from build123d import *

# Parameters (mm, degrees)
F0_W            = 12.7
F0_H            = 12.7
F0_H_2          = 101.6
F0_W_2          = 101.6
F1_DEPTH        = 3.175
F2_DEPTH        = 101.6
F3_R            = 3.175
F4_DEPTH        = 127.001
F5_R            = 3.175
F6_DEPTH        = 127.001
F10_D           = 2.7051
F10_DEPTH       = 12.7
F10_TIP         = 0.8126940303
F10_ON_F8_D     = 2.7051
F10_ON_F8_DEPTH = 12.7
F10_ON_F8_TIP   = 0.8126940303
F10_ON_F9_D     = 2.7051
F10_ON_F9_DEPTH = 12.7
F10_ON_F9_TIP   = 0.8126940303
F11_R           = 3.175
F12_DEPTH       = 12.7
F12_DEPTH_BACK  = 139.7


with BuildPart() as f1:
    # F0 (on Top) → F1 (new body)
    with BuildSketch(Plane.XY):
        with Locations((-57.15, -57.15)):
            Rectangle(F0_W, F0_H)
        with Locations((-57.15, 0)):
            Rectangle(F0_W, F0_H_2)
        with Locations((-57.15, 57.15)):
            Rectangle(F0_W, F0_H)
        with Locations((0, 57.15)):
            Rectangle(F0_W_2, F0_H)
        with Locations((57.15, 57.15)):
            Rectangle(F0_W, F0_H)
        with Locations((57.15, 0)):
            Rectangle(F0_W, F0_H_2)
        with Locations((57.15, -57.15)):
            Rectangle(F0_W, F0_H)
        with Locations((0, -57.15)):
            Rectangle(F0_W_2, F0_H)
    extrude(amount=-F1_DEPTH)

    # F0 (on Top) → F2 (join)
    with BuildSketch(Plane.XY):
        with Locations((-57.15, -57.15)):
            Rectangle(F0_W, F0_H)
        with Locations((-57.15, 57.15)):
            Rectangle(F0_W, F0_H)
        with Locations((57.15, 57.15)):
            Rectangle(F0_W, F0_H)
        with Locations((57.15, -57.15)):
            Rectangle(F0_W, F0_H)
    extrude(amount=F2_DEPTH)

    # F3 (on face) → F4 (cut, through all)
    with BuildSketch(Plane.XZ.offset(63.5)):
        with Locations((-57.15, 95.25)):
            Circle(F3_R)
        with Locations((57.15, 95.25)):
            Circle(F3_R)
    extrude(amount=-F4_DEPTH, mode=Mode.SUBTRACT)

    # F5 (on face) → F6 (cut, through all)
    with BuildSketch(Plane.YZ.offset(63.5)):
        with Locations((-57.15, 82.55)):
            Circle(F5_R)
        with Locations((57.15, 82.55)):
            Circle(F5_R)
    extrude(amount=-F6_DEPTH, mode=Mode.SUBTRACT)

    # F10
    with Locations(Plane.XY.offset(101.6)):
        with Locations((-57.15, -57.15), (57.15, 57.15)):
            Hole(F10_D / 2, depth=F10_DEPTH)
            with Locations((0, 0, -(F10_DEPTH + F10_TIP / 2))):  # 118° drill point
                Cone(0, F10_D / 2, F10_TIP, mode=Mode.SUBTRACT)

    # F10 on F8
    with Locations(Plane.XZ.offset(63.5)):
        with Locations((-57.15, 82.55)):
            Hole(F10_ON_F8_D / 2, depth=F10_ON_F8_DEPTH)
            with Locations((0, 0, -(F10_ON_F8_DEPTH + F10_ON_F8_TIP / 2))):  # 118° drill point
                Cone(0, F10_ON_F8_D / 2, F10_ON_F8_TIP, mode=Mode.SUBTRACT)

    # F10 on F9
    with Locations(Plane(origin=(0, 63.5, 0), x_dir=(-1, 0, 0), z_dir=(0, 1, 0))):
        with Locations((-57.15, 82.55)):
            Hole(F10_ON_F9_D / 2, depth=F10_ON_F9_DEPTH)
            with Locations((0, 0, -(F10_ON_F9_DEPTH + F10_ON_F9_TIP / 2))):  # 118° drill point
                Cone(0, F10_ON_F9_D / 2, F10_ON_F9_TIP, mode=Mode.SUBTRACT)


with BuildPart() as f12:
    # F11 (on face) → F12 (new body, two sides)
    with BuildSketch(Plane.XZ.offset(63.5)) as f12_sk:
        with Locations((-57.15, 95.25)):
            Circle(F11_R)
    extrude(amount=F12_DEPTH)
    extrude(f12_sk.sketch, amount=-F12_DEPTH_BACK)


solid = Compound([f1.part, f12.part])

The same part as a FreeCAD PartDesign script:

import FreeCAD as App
import Part
import Sketcher

V = App.Vector
Q = App.Units.Quantity


def add_polygon(sketch, points):
    """Adds a closed chain of lines whose ends are joined by coincident constraints."""
    first, n = sketch.GeometryCount, len(points)
    for a, b in zip(points, points[1:] + points[:1]):
        sketch.addGeometry(Part.LineSegment(App.Vector(*a, 0), App.Vector(*b, 0)), False)
    for i in range(n):
        sketch.addConstraint(Sketcher.Constraint("Coincident", first + i, 2, first + (i + 1) % n, 1))

doc = App.newDocument("Part")
body = doc.addObject("PartDesign::Body", "Body")

# Sketch on XY plane
sketch1 = body.newObject("Sketcher::SketchObject", "Sketch")
sketch1.AttachmentSupport = (doc.getObject("XY_Plane"), [""])
sketch1.MapMode = "FlatFace"
add_polygon(sketch1, [(-64, -64), (64, -64), (64, 64), (-64, 64)])  # lines 0-3
add_polygon(sketch1, [(-51, -51), (-51, 51), (51, 51), (51, -51)])  # lines 4-7
sketch1.addConstraint(Sketcher.Constraint("Horizontal", 0))
sketch1.addConstraint(Sketcher.Constraint("Vertical", 1))
sketch1.addConstraint(Sketcher.Constraint("Horizontal", 2))
sketch1.addConstraint(Sketcher.Constraint("Vertical", 3))
sketch1.addConstraint(Sketcher.Constraint("Vertical", 4))
sketch1.addConstraint(Sketcher.Constraint("Horizontal", 5))
sketch1.addConstraint(Sketcher.Constraint("Vertical", 6))
sketch1.addConstraint(Sketcher.Constraint("Horizontal", 7))
sketch1.addConstraint(Sketcher.Constraint("Symmetric", 0, 2, 2, 2, -1, 1))
sketch1.addConstraint(Sketcher.Constraint("Symmetric", 4, 2, 6, 2, -1, 1))
sketch1.addConstraint(Sketcher.Constraint("Equal", 2, 1))
sketch1.addConstraint(Sketcher.Constraint("Equal", 7, 4))
sketch1.addConstraint(Sketcher.Constraint("DistanceX", 0, 1, 0, 2, Q("5 in")))
sketch1.addConstraint(Sketcher.Constraint("DistanceX", 5, 1, 5, 2, Q("4 in")))
pad1 = body.newObject("PartDesign::Pad", "Pad")
pad1.Profile = sketch1
pad1.Length = Q("0.125 in")
pad1.Reversed = True

# Sketch on XY plane
sketch2 = body.newObject("Sketcher::SketchObject", "Sketch001")
sketch2.AttachmentSupport = (doc.getObject("XY_Plane"), [""])
sketch2.MapMode = "FlatFace"
add_polygon(sketch2, [(-64, -51), (-64, -64), (-51, -64), (-51, -51)])  # lines 0-3
add_polygon(sketch2, [(-64, 64), (-64, 51), (-51, 51), (-51, 64)])  # lines 4-7
add_polygon(sketch2, [(51, 64), (51, 51), (64, 51), (64, 64)])  # lines 8-11
add_polygon(sketch2, [(51, -51), (51, -64), (64, -64), (64, -51)])  # lines 12-15
sketch2.addConstraint(Sketcher.Constraint("Vertical", 0))
sketch2.addConstraint(Sketcher.Constraint("Horizontal", 1))
sketch2.addConstraint(Sketcher.Constraint("Vertical", 2))
sketch2.addConstraint(Sketcher.Constraint("Horizontal", 3))
sketch2.addConstraint(Sketcher.Constraint("Vertical", 4))
sketch2.addConstraint(Sketcher.Constraint("Horizontal", 5))
sketch2.addConstraint(Sketcher.Constraint("Vertical", 6))
sketch2.addConstraint(Sketcher.Constraint("Horizontal", 7))
sketch2.addConstraint(Sketcher.Constraint("Vertical", 8))
sketch2.addConstraint(Sketcher.Constraint("Horizontal", 9))
sketch2.addConstraint(Sketcher.Constraint("Vertical", 10))
sketch2.addConstraint(Sketcher.Constraint("Horizontal", 11))
sketch2.addConstraint(Sketcher.Constraint("Vertical", 12))
sketch2.addConstraint(Sketcher.Constraint("Horizontal", 13))
sketch2.addConstraint(Sketcher.Constraint("Vertical", 14))
sketch2.addConstraint(Sketcher.Constraint("Horizontal", 15))
sketch2.addConstraint(Sketcher.Constraint("Symmetric", 2, 2, 8, 2, -1, 1))
sketch2.addConstraint(Sketcher.Constraint("Symmetric", 0, 2, 10, 2, -1, 1))
sketch2.addConstraint(Sketcher.Constraint("Symmetric", 6, 2, 12, 2, -1, 1))
sketch2.addConstraint(Sketcher.Constraint("Symmetric", 4, 2, 14, 2, -1, 1))
sketch2.addConstraint(Sketcher.Constraint("Symmetric", 5, 2, 8, 2, -2))
sketch2.addConstraint(Sketcher.Constraint("Symmetric", 7, 2, 10, 2, -2))
sketch2.addConstraint(Sketcher.Constraint("Equal", 15, 0))
sketch2.addConstraint(Sketcher.Constraint("DistanceX", 1, 1, 1, 2, Q("0.5 in")))
sketch2.addConstraint(Sketcher.Constraint("DistanceX", 1, 2, -1, 1, Q("2 in")))
sketch2.addConstraint(Sketcher.Constraint("DistanceY", 2, 2, -1, 1, Q("2 in")))
pad2 = body.newObject("PartDesign::Pad", "Pad001")
pad2.Profile = sketch2
pad2.Length = Q("4 in")

# Sketch on XZ plane
sketch3 = body.newObject("Sketcher::SketchObject", "Sketch002")
sketch3.AttachmentSupport = (doc.getObject("XZ_Plane"), [""])
sketch3.MapMode = "FlatFace"
sketch3.AttachmentOffset = App.Placement(V(0, 0, 2.5 * 25.4), App.Rotation())
sketch3.addGeometry(Part.Circle(V(-57.1, 95.2, 0), V(0, 0, 1), 3.2), False)
sketch3.addGeometry(Part.Circle(V(57.1, 95.2, 0), V(0, 0, 1), 3.2), False)
sketch3.addConstraint(Sketcher.Constraint("Equal", 0, 1))
sketch3.addConstraint(Sketcher.Constraint("Symmetric", 0, 3, 1, 3, -2))
sketch3.addConstraint(Sketcher.Constraint("Diameter", 0, Q("0.25 in")))
sketch3.addConstraint(Sketcher.Constraint("DistanceX", 0, 3, 1, 3, Q("4.5 in")))
sketch3.addConstraint(Sketcher.Constraint("DistanceY", -1, 1, 0, 3, Q("3.75 in")))
pocket1 = body.newObject("PartDesign::Pocket", "Pocket")
pocket1.Profile = sketch3
pocket1.Type = "ThroughAll"

# Sketch on YZ plane
sketch4 = body.newObject("Sketcher::SketchObject", "Sketch003")
sketch4.AttachmentSupport = (doc.getObject("YZ_Plane"), [""])
sketch4.MapMode = "FlatFace"
sketch4.AttachmentOffset = App.Placement(V(0, 0, 2.5 * 25.4), App.Rotation())
sketch4.addGeometry(Part.Circle(V(-57.1, 82.5, 0), V(0, 0, 1), 3.2), False)
sketch4.addGeometry(Part.Circle(V(57.1, 82.5, 0), V(0, 0, 1), 3.2), False)
sketch4.addConstraint(Sketcher.Constraint("Equal", 0, 1))
sketch4.addConstraint(Sketcher.Constraint("Symmetric", 0, 3, 1, 3, -2))
sketch4.addConstraint(Sketcher.Constraint("Diameter", 0, Q("0.25 in")))
sketch4.addConstraint(Sketcher.Constraint("DistanceX", 0, 3, 1, 3, Q("4.5 in")))
sketch4.addConstraint(Sketcher.Constraint("DistanceY", -1, 1, 0, 3, Q("3.25 in")))
pocket2 = body.newObject("PartDesign::Pocket", "Pocket001")
pocket2.Profile = sketch4
pocket2.Type = "ThroughAll"

# Sketch on XY plane
sketch5 = body.newObject("Sketcher::SketchObject", "Sketch004")
sketch5.AttachmentSupport = (doc.getObject("XY_Plane"), [""])
sketch5.MapMode = "FlatFace"
sketch5.AttachmentOffset = App.Placement(V(0, 0, 4 * 25.4), App.Rotation())
sketch5.addGeometry(Part.Circle(V(-57.1, -57.1, 0), V(0, 0, 1), 1.4), False)
sketch5.addGeometry(Part.Circle(V(57.1, 57.1, 0), V(0, 0, 1), 1.4), False)
sketch5.addConstraint(Sketcher.Constraint("Equal", 0, 1))
sketch5.addConstraint(Sketcher.Constraint("Symmetric", 0, 3, 1, 3, -1, 1))
sketch5.addConstraint(Sketcher.Constraint("Diameter", 0, Q("0.1065 in")))
sketch5.addConstraint(Sketcher.Constraint("DistanceX", 0, 3, 1, 3, Q("4.5 in")))
sketch5.addConstraint(Sketcher.Constraint("DistanceY", 0, 3, 1, 3, Q("4.5 in")))
doc.recompute()
hole = body.newObject("PartDesign::Hole", "Hole")
hole.Profile = sketch5
hole.ThreadType = "None"
hole.Diameter = Q("0.1065 in")
hole.DepthType = "Dimension"
hole.Depth = Q("0.5 in")
hole.DrillPoint = "Angled"
hole.DrillPointAngle = 118

# Sketch on XZ plane
sketch6 = body.newObject("Sketcher::SketchObject", "Sketch005")
sketch6.AttachmentSupport = (doc.getObject("XZ_Plane"), [""])
sketch6.MapMode = "FlatFace"
sketch6.AttachmentOffset = App.Placement(V(0, 0, 2.5 * 25.4), App.Rotation())
sketch6.addGeometry(Part.Circle(V(-57.1, 82.5, 0), V(0, 0, 1), 1.4), False)
sketch6.addConstraint(Sketcher.Constraint("Diameter", 0, Q("0.1065 in")))
sketch6.addConstraint(Sketcher.Constraint("DistanceX", 0, 3, -1, 1, Q("2.25 in")))
sketch6.addConstraint(Sketcher.Constraint("DistanceY", -1, 1, 0, 3, Q("3.25 in")))
doc.recompute()
hole2 = body.newObject("PartDesign::Hole", "Hole001")
hole2.Profile = sketch6
hole2.ThreadType = "None"
hole2.Diameter = Q("0.1065 in")
hole2.DepthType = "Dimension"
hole2.Depth = Q("0.5 in")
hole2.DrillPoint = "Angled"
hole2.DrillPointAngle = 118

# Sketch on XZ plane
sketch7 = body.newObject("Sketcher::SketchObject", "Sketch006")
sketch7.AttachmentSupport = (doc.getObject("XZ_Plane"), [""])
sketch7.MapMode = "FlatFace"
sketch7.AttachmentOffset = App.Placement(V(0, 0, -2.5 * 25.4), App.Rotation())
sketch7.addGeometry(Part.Circle(V(57.1, 82.5, 0), V(0, 0, 1), 1.4), False)
sketch7.addConstraint(Sketcher.Constraint("Diameter", 0, Q("0.1065 in")))
sketch7.addConstraint(Sketcher.Constraint("DistanceX", -1, 1, 0, 3, Q("2.25 in")))
sketch7.addConstraint(Sketcher.Constraint("DistanceY", -1, 1, 0, 3, Q("3.25 in")))
doc.recompute()
hole3 = body.newObject("PartDesign::Hole", "Hole002")
hole3.Profile = sketch7
hole3.ThreadType = "None"
hole3.Diameter = Q("0.1065 in")
hole3.DepthType = "Dimension"
hole3.Depth = Q("0.5 in")
hole3.DrillPoint = "Angled"
hole3.DrillPointAngle = 118
hole3.Reversed = True
body2 = doc.addObject("PartDesign::Body", "Body001")

# Sketch on XZ plane
sketch8 = body2.newObject("Sketcher::SketchObject", "Sketch007")
sketch8.AttachmentSupport = (doc.getObject("XZ_Plane001"), [""])
sketch8.MapMode = "FlatFace"
sketch8.AttachmentOffset = App.Placement(V(0, 0, 2.5 * 25.4), App.Rotation())
sketch8.addGeometry(Part.Circle(V(-57.1, 95.2, 0), V(0, 0, 1), 3.2), False)
sketch8.addConstraint(Sketcher.Constraint("Diameter", 0, Q("0.25 in")))
sketch8.addConstraint(Sketcher.Constraint("DistanceX", 0, 3, -1, 1, Q("2.25 in")))
sketch8.addConstraint(Sketcher.Constraint("DistanceY", -1, 1, 0, 3, Q("3.75 in")))
pad3 = body2.newObject("PartDesign::Pad", "Pad002")
pad3.Profile = sketch8
pad3.Type = "TwoLengths"
pad3.Length = Q("0.5 in")
pad3.Length2 = Q("5.5 in")

doc.recompute()
